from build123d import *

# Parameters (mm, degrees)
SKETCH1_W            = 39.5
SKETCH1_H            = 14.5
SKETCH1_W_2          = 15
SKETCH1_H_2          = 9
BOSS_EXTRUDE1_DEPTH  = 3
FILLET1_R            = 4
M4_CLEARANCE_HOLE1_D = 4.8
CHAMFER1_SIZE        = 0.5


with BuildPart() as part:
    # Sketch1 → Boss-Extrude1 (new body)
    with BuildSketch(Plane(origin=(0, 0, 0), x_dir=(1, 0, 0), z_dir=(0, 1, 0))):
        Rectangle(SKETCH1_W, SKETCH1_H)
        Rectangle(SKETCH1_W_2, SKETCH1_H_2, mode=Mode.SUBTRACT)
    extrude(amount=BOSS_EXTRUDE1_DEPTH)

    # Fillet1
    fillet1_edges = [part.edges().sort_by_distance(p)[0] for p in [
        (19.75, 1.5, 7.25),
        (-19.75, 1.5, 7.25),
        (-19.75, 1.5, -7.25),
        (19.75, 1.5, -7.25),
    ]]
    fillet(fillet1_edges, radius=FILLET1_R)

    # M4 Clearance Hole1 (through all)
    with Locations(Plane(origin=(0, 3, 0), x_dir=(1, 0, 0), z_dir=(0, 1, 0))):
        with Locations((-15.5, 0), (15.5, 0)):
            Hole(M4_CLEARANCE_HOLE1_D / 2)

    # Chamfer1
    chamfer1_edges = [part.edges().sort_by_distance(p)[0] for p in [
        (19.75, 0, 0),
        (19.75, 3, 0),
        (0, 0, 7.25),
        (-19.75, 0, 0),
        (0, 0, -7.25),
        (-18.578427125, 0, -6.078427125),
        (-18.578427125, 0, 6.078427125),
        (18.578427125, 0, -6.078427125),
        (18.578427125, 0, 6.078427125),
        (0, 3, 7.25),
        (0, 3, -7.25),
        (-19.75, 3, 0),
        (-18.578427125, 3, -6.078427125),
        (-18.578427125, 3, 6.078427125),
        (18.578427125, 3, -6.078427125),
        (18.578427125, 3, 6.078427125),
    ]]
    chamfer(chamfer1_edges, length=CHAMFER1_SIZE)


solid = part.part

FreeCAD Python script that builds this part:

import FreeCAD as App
import Part
import Sketcher

V = App.Vector
Q = App.Units.Quantity


def edges_at(feature, points):
    """Names of the edges that pass closest to the given points."""
    edges = feature.Shape.Edges
    near = lambda p: min(range(len(edges)), key=lambda i: edges[i].distToShape(Part.Vertex(*p))[0])
    return sorted({f"Edge{near(p) + 1}" for p in points})


def add_polygon(sketch, points):
    """Adds a closed chain of lines whose ends are joined by coincident constraints."""
    first, n = sketch.GeometryCount, len(points)
    for a, b in zip(points, points[1:] + points[:1]):
        sketch.addGeometry(Part.LineSegment(App.Vector(*a, 0), App.Vector(*b, 0)), False)
    for i in range(n):
        sketch.addConstraint(Sketcher.Constraint("Coincident", first + i, 2, first + (i + 1) % n, 1))

doc = App.newDocument("Part")
body = doc.addObject("PartDesign::Body", "Body")

sketch1 = body.newObject("Sketcher::SketchObject", "Sketch")
sketch1.AttachmentSupport = (doc.getObject("XZ_Plane"), [""])
sketch1.MapMode = "FlatFace"
add_polygon(sketch1, [(-20, -7), (-20, 7), (20, 7), (20, -7)])
add_polygon(sketch1, [(8, 4), (-8, 4), (-8, -4), (8, -4)])
sketch1.addConstraint([
    Sketcher.Constraint("Vertical", 0),
    Sketcher.Constraint("Horizontal", 1),
    Sketcher.Constraint("Vertical", 2),
    Sketcher.Constraint("Horizontal", 3),
    Sketcher.Constraint("Horizontal", 4),
    Sketcher.Constraint("Vertical", 5),
    Sketcher.Constraint("Horizontal", 6),
    Sketcher.Constraint("Vertical", 7),
    Sketcher.Constraint("Symmetric", 0, 2, 2, 2, -1, 1),
    Sketcher.Constraint("Symmetric", 4, 2, 6, 2, -1, 1),
    Sketcher.Constraint("DistanceX", 4, 2, 4, 1, Q("15 mm")),
    Sketcher.Constraint("DistanceY", 5, 2, 5, 1, Q("9 mm")),
    Sketcher.Constraint("DistanceX", 1, 1, 1, 2, Q("39.5 mm")),
    Sketcher.Constraint("DistanceY", 0, 1, 0, 2, Q("14.5 mm")),
])
pad1 = body.newObject("PartDesign::Pad", "Pad")
pad1.Profile = sketch1
pad1.Length = 3
pad1.Reversed = True
doc.recompute()

fillet = body.newObject("PartDesign::Fillet", "Fillet")
fillet.Base = (pad1, edges_at(pad1, [
    (19.75, 1.5, 7.25),
    (-19.75, 1.5, 7.25),
    (-19.75, 1.5, -7.25),
    (19.75, 1.5, -7.25),
]))
fillet.Radius = 4

sketch2 = body.newObject("Sketcher::SketchObject", "Sketch001")
sketch2.AttachmentSupport = (doc.getObject("XZ_Plane"), [""])
sketch2.MapMode = "FlatFace"
sketch2.AttachmentOffset = App.Placement(V(0, 0, -3), App.Rotation())
sketch2.addGeometry([
    Part.Circle(V(-15.5, 0, 0), V(0, 0, 1), 2.4),
    Part.Circle(V(15.5, 0, 0), V(0, 0, 1), 2.4),
], False)
sketch2.addConstraint([
    Sketcher.Constraint("Equal", 0, 1),
    Sketcher.Constraint("Symmetric", 0, 3, 1, 3, -1, 1),
    Sketcher.Constraint("PointOnObject", 0, 3, -1),
    Sketcher.Constraint("Diameter", 0, Q("4.8 mm")),
    Sketcher.Constraint("DistanceX", 0, 3, 1, 3, Q("31 mm")),
])
doc.recompute()
hole = body.newObject("PartDesign::Hole", "Hole")
hole.Profile = sketch2
hole.ThreadType = "None"
hole.Diameter = 4.8
hole.DepthType = "ThroughAll"
hole.Reversed = True
doc.recompute()

chamfer = body.newObject("PartDesign::Chamfer", "Chamfer")
chamfer.Base = (hole, edges_at(hole, [
    (19.75, 0, 0),
    (19.75, 3, 0),
    (0, 0, 7.25),
    (-19.75, 0, 0),
    (0, 0, -7.25),
    (-18.578, 0, -6.078),
    (-18.578, 0, 6.078),
    (18.578, 0, -6.078),
    (18.578, 0, 6.078),
    (0, 3, 7.25),
    (0, 3, -7.25),
    (-19.75, 3, 0),
    (-18.578, 3, -6.078),
    (-18.578, 3, 6.078),
    (18.578, 3, -6.078),
    (18.578, 3, 6.078),
]))
chamfer.Size = 0.5

doc.recompute()
